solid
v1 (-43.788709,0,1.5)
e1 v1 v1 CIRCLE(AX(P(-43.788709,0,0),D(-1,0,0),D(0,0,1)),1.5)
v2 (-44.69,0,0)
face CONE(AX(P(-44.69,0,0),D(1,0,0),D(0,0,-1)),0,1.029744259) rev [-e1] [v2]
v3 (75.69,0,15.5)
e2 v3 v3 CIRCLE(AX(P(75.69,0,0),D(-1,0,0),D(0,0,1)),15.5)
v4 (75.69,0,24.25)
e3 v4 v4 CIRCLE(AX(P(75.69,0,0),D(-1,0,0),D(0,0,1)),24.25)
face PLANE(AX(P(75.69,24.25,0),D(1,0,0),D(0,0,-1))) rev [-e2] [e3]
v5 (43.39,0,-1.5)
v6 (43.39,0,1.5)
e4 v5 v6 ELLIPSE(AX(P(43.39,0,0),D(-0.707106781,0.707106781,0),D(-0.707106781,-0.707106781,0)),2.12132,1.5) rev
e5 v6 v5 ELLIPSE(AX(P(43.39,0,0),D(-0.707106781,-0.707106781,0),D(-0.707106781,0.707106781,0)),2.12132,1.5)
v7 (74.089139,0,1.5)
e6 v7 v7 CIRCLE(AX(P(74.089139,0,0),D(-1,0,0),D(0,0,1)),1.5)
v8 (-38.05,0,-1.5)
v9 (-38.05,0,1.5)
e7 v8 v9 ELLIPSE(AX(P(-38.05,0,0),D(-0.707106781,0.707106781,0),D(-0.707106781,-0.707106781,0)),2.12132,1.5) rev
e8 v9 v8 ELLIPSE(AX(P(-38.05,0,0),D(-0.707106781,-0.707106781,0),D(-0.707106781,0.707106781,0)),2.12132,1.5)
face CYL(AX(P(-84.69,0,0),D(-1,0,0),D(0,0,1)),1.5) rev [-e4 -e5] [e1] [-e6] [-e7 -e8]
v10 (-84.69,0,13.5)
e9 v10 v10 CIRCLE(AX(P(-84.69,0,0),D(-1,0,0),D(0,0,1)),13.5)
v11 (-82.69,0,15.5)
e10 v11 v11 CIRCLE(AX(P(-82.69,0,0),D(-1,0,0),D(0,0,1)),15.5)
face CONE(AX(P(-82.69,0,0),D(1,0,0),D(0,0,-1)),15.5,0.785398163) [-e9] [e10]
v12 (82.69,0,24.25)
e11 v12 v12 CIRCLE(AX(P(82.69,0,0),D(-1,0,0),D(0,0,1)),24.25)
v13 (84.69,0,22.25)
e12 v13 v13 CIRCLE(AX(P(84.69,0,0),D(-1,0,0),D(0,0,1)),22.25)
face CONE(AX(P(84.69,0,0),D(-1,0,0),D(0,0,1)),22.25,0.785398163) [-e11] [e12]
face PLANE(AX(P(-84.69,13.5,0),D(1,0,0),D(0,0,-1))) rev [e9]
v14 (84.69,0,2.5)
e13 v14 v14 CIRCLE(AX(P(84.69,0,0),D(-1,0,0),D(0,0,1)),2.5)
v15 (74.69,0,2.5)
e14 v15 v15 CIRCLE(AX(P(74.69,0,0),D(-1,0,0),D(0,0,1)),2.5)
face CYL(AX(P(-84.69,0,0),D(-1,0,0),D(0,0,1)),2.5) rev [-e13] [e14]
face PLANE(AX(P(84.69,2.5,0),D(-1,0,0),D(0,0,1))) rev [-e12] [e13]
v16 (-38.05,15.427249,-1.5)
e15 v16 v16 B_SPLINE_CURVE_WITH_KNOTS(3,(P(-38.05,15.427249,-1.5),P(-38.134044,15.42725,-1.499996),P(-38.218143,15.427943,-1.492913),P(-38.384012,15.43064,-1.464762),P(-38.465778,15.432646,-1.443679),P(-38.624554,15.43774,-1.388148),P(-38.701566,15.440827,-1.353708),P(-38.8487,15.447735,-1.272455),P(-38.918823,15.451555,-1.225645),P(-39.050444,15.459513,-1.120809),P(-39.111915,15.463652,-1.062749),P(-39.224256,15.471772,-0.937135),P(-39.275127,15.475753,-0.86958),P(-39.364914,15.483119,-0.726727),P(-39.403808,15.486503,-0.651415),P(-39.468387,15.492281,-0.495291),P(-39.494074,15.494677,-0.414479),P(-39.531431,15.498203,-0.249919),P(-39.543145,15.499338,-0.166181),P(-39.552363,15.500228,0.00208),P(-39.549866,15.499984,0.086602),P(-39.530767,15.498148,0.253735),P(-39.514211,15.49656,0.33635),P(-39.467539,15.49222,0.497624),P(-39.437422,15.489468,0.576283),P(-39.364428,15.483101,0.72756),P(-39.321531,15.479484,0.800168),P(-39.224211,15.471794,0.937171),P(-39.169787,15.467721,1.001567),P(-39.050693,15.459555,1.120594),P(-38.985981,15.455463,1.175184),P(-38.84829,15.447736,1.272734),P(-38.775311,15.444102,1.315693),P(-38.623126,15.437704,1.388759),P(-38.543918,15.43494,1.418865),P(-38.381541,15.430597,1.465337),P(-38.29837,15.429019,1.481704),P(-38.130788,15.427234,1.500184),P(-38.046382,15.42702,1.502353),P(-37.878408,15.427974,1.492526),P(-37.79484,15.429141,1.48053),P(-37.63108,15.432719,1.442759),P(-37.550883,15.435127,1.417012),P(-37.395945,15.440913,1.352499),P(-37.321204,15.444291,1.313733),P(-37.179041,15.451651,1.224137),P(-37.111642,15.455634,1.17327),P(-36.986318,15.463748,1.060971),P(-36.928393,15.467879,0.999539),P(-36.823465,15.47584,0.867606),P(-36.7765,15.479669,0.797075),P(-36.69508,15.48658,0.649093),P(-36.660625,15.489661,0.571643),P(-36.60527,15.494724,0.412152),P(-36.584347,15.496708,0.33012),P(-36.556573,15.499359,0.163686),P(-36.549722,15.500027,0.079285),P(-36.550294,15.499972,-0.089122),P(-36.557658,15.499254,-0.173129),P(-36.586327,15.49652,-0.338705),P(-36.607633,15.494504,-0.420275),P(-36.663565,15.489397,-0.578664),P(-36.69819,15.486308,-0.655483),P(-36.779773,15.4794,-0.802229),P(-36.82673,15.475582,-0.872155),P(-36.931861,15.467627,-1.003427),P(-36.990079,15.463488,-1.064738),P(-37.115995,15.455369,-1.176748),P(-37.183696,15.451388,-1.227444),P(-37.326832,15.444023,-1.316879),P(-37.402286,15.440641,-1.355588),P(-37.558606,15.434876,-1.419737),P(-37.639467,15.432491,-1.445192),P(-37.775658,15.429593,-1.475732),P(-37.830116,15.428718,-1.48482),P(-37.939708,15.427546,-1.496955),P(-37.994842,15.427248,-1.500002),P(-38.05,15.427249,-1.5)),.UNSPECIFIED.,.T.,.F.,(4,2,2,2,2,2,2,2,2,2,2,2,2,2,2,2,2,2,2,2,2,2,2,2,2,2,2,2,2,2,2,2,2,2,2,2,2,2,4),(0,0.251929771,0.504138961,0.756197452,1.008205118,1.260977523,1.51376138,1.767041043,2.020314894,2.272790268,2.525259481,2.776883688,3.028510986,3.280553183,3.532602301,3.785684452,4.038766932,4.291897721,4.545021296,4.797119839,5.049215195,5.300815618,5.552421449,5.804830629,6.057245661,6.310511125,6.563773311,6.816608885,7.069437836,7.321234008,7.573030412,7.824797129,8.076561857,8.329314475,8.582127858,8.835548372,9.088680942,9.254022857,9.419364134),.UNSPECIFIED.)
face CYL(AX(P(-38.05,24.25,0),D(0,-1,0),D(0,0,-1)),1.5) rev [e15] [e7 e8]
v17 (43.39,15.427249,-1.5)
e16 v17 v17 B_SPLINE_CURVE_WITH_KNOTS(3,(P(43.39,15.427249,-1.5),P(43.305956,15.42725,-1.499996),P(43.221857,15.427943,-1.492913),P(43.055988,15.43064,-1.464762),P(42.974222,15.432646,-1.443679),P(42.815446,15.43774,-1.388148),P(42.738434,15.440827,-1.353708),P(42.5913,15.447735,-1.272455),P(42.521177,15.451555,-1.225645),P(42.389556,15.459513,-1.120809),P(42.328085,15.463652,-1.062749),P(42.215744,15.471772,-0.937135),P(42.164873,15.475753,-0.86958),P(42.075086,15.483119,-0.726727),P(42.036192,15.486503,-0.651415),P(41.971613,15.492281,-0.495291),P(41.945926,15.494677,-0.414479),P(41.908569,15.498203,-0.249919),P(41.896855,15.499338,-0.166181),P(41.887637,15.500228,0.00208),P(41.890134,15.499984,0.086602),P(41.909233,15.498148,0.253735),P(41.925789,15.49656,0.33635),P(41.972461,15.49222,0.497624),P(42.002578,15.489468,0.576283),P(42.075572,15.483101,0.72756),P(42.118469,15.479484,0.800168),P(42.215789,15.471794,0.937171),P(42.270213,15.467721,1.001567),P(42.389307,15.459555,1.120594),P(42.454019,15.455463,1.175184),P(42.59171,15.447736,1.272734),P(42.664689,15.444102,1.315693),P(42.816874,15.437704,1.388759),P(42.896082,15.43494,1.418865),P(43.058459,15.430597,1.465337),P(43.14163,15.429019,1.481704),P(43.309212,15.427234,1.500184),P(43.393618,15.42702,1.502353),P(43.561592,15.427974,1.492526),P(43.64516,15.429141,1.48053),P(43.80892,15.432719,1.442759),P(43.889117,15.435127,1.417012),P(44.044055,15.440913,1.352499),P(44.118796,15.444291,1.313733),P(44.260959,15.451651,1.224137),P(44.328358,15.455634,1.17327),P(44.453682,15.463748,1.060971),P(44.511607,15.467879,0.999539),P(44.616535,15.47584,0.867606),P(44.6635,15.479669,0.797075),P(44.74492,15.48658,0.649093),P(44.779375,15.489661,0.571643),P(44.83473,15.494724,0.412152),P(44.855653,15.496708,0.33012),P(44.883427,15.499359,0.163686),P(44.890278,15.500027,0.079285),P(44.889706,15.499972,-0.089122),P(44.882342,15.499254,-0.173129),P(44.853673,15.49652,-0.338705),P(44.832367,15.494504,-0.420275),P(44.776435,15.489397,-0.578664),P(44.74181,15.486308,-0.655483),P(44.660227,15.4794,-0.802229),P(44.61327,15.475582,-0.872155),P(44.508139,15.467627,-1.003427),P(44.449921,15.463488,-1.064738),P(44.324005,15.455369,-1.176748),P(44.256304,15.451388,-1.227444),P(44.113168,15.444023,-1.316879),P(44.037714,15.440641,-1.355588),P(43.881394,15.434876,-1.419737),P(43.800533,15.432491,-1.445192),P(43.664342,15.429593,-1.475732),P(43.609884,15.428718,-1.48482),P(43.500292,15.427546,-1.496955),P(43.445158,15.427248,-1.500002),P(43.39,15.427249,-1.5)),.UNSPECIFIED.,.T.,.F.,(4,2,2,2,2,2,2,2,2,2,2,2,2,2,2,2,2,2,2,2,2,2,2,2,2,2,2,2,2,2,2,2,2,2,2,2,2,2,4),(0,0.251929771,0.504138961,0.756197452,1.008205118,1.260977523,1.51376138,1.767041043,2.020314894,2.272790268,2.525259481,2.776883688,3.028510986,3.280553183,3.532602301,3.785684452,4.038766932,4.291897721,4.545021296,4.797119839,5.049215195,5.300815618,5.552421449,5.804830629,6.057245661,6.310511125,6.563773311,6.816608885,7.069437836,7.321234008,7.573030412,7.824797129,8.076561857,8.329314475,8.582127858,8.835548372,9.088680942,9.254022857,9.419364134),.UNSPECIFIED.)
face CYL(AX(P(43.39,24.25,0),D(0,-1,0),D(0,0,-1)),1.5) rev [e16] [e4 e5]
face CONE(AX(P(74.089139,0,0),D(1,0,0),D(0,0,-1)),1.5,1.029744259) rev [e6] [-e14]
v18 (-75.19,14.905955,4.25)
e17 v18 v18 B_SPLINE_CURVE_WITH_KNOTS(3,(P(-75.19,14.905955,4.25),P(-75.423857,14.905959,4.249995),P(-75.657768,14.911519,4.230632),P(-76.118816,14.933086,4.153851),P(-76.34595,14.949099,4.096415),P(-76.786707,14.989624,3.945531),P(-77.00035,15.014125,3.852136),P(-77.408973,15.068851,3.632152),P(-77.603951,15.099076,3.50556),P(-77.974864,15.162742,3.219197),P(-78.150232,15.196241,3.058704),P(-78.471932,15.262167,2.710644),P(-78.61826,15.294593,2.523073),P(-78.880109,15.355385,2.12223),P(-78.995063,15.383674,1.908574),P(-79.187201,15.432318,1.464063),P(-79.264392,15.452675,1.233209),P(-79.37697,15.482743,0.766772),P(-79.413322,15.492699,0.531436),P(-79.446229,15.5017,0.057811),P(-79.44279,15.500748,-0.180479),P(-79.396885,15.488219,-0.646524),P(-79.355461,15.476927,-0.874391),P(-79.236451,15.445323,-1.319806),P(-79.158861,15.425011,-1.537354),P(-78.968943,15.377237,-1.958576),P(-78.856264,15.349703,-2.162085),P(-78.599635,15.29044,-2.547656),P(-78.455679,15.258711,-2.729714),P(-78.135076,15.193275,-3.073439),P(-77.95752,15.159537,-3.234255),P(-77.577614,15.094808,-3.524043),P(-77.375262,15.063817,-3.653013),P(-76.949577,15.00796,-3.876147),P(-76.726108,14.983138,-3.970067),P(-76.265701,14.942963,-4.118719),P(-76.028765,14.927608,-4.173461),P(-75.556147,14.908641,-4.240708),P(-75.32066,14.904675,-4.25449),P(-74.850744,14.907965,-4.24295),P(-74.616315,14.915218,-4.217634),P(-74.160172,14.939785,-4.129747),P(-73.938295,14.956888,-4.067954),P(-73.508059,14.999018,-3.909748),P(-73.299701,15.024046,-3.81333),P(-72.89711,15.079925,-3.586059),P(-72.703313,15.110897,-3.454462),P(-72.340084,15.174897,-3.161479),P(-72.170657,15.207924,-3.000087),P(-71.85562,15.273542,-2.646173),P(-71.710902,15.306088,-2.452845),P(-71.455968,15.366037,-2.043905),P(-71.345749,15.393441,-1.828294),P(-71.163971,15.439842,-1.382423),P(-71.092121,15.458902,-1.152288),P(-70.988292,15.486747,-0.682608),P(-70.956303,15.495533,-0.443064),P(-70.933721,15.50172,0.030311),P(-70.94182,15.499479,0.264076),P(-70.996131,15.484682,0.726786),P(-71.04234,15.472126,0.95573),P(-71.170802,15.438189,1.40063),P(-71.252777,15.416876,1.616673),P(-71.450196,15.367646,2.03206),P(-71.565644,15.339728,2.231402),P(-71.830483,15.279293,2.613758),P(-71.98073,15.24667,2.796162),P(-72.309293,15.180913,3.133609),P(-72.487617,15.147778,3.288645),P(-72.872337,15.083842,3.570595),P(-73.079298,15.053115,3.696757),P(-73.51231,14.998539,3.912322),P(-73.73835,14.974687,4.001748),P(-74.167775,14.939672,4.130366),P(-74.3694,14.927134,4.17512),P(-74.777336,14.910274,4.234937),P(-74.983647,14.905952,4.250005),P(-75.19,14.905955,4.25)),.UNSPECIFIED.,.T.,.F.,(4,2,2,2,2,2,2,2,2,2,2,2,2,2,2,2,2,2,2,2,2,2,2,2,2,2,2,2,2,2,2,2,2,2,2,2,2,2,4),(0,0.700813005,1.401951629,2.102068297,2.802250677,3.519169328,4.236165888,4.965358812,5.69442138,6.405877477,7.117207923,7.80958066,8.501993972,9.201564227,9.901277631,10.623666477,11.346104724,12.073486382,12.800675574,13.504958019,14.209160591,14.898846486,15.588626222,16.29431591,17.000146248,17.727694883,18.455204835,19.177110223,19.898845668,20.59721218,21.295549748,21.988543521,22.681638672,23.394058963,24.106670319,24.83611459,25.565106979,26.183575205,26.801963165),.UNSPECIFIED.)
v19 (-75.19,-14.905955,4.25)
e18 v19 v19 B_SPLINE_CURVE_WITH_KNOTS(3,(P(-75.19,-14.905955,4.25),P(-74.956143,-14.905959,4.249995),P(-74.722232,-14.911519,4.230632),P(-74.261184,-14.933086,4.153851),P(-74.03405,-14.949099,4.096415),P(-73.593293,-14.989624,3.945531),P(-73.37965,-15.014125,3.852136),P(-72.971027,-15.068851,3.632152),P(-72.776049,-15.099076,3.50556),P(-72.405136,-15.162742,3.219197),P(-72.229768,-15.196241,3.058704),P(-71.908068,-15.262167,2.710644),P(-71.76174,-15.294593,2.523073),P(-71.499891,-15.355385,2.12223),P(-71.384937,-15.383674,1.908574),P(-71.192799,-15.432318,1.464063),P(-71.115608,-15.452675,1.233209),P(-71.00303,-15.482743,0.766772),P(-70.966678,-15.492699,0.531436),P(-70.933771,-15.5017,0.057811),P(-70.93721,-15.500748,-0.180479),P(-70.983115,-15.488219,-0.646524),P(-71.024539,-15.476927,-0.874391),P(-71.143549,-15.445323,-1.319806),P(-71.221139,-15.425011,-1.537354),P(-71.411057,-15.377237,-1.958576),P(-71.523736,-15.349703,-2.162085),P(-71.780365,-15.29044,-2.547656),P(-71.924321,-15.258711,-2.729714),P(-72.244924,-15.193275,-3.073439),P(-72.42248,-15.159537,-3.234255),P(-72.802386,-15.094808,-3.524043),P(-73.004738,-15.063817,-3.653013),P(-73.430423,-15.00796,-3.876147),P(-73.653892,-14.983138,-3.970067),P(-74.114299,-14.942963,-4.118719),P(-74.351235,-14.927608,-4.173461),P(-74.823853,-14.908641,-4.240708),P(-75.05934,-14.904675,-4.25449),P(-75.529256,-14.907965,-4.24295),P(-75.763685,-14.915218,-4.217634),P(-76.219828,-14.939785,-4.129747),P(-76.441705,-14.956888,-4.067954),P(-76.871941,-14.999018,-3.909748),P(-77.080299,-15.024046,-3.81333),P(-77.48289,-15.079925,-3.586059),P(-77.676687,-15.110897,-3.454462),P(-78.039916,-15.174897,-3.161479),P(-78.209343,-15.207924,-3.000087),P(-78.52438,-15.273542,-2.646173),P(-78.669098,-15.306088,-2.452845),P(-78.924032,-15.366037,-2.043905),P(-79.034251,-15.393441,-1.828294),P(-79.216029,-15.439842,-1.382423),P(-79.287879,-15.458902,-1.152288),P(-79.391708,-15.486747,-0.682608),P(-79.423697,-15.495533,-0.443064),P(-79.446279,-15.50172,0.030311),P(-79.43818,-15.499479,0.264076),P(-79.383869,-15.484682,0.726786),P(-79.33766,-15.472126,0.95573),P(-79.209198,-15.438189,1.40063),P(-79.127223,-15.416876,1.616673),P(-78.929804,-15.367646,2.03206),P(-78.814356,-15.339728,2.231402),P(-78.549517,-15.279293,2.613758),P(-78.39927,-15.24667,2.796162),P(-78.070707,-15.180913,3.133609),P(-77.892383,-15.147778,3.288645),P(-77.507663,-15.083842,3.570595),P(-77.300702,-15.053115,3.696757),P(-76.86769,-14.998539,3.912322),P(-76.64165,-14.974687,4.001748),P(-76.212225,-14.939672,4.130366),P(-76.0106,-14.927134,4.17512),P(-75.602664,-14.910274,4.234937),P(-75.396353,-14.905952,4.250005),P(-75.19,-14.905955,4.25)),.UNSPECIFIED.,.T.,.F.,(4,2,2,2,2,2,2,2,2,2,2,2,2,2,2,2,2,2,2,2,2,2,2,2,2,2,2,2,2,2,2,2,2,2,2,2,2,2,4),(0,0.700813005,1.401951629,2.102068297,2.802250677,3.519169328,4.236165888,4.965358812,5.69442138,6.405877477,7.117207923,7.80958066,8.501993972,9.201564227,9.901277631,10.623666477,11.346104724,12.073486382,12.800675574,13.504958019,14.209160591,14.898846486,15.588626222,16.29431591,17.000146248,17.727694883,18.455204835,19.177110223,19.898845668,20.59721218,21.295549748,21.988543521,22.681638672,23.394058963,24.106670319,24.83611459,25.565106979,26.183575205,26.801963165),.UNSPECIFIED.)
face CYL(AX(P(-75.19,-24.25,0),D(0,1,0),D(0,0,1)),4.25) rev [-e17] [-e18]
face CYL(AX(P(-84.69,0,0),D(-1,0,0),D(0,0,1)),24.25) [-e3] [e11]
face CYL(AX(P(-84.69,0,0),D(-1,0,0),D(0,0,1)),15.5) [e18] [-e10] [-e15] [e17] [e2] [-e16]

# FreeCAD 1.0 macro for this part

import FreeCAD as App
import Part
import Sketcher
from FreeCAD import Vector
Q = App.Units.Quantity

doc = App.newDocument("Part")
params = doc.addObject("Spreadsheet::Sheet", "Params")
for row, (alias, value) in enumerate([
    ("sketch1_width", "7 mm"),
    ("sketch1_width2", "40 mm"),
    ("sketch1_width3", "10 mm"),
    ("sketch1_height", "13.5 mm"),
    ("sketch1_width4", "158.38 mm"),
    ("revolution_angle", "360 deg"),
    ("sketch2_diameter", "3 mm"),
    ("sketch3_diameter", "8.5 mm"),
], start=1):
    params.set(f"A{row}", alias)
    params.set(f"B{row}", "=" + value)
    params.setAlias(f"B{row}", alias)

body = doc.addObject("PartDesign::Body", "Body")

# Sketch on XY plane
sketch1 = body.newObject("Sketcher::SketchObject", "Sketch")
sketch1.AttachmentSupport = (doc.getObject("XY_Plane"), [""])
sketch1.MapMode = "FlatFace"
sketch1.addGeometry(Part.LineSegment(Vector(84.7, 2.5, 0), Vector(84.7, 22.2, 0)), False)
sketch1.addGeometry(Part.LineSegment(Vector(84.7, 22.2, 0), Vector(82.7, 24.2, 0)), False)
sketch1.addGeometry(Part.LineSegment(Vector(82.7, 24.2, 0), Vector(75.7, 24.2, 0)), False)
sketch1.addGeometry(Part.LineSegment(Vector(75.7, 24.2, 0), Vector(75.7, 15.5, 0)), False)
sketch1.addGeometry(Part.LineSegment(Vector(75.7, 15.5, 0), Vector(-82.7, 15.5, 0)), False)
sketch1.addGeometry(Part.LineSegment(Vector(-82.7, 15.5, 0), Vector(-84.7, 13.5, 0)), False)
sketch1.addGeometry(Part.LineSegment(Vector(-84.7, 13.5, 0), Vector(-84.7, 0, 0)), False)
sketch1.addGeometry(Part.LineSegment(Vector(-84.7, 0, 0), Vector(-44.7, 0, 0)), False)
sketch1.addGeometry(Part.LineSegment(Vector(-44.7, 0, 0), Vector(-43.8, 1.5, 0)), False)
sketch1.addGeometry(Part.LineSegment(Vector(-43.8, 1.5, 0), Vector(74.1, 1.5, 0)), False)
sketch1.addGeometry(Part.LineSegment(Vector(74.1, 1.5, 0), Vector(74.7, 2.5, 0)), False)
sketch1.addGeometry(Part.LineSegment(Vector(74.7, 2.5, 0), Vector(84.7, 2.5, 0)), False)
sketch1.addConstraint(Sketcher.Constraint("Coincident", 0, 2, 1, 1))
sketch1.addConstraint(Sketcher.Constraint("Coincident", 1, 2, 2, 1))
sketch1.addConstraint(Sketcher.Constraint("Coincident", 2, 2, 3, 1))
sketch1.addConstraint(Sketcher.Constraint("Coincident", 3, 2, 4, 1))
sketch1.addConstraint(Sketcher.Constraint("Coincident", 4, 2, 5, 1))
sketch1.addConstraint(Sketcher.Constraint("Coincident", 5, 2, 6, 1))
sketch1.addConstraint(Sketcher.Constraint("Coincident", 6, 2, 7, 1))
sketch1.addConstraint(Sketcher.Constraint("Coincident", 7, 2, 8, 1))
sketch1.addConstraint(Sketcher.Constraint("Coincident", 8, 2, 9, 1))
sketch1.addConstraint(Sketcher.Constraint("Coincident", 9, 2, 10, 1))
sketch1.addConstraint(Sketcher.Constraint("Coincident", 10, 2, 11, 1))
sketch1.addConstraint(Sketcher.Constraint("Coincident", 11, 2, 0, 1))
sketch1.addConstraint(Sketcher.Constraint("Vertical", 0))
sketch1.addConstraint(Sketcher.Constraint("Horizontal", 2))
sketch1.addConstraint(Sketcher.Constraint("Vertical", 3))
sketch1.addConstraint(Sketcher.Constraint("Horizontal", 4))
sketch1.addConstraint(Sketcher.Constraint("Vertical", 6))
sketch1.addConstraint(Sketcher.Constraint("Horizontal", 7))
sketch1.addConstraint(Sketcher.Constraint("Horizontal", 9))
sketch1.addConstraint(Sketcher.Constraint("Horizontal", 11))
sketch1.addConstraint(Sketcher.Constraint("PointOnObject", 6, 2, -1))
sketch1.addConstraint(Sketcher.Constraint("Perpendicular", 1, 5))
sketch1.addConstraint(Sketcher.Constraint("Parallel", 8, 10))
sketch1.addConstraint(Sketcher.Constraint("Equal", 1, 5))
sketch1.addConstraint(Sketcher.Constraint("DistanceX", 2, 2, 2, 1, 7.0))
sketch1.addConstraint(Sketcher.Constraint("DistanceX", 7, 1, 7, 2, 40.0))
sketch1.addConstraint(Sketcher.Constraint("DistanceX", 11, 1, 11, 2, 10.0))
sketch1.addConstraint(Sketcher.Constraint("Angle", 1, Q("135 deg")))
sketch1.addConstraint(Sketcher.Constraint("Angle", 8, Q("59 deg")))
sketch1.addConstraint(Sketcher.Constraint("DistanceY", 6, 2, 6, 1, 13.5))
sketch1.addConstraint(Sketcher.Constraint("DistanceX", 1, 2, 0, 2, 2.0))
sketch1.addConstraint(Sketcher.Constraint("DistanceY", 8, 2, 4, 2, 14.0))
sketch1.addConstraint(Sketcher.Constraint("DistanceY", 9, 2, 10, 2, 1.0))
sketch1.addConstraint(Sketcher.Constraint("DistanceX", 4, 2, 4, 1, 158.38))
sketch1.addConstraint(Sketcher.Constraint("DistanceY", 0, 1, 0, 2, 19.75))
sketch1.addConstraint(Sketcher.Constraint("DistanceX", -1, 1, 0, 2, 84.69))
sketch1.setExpression("Constraints[24]", "Params.sketch1_width")
sketch1.setExpression("Constraints[25]", "Params.sketch1_width2")
sketch1.setExpression("Constraints[26]", "Params.sketch1_width3")
sketch1.setExpression("Constraints[29]", "Params.sketch1_height")
sketch1.setExpression("Constraints[33]", "Params.sketch1_width4")
revolution = body.newObject("PartDesign::Revolution", "Revolution")
revolution.Profile = sketch1
revolution.ReferenceAxis = (sketch1, ["H_Axis"])
revolution.setExpression("Angle", "Params.revolution_angle")

# Sketch on XZ plane
sketch2 = body.newObject("Sketcher::SketchObject", "Sketch001")
sketch2.AttachmentSupport = (doc.getObject("XZ_Plane"), [""])
sketch2.MapMode = "FlatFace"
sketch2.addGeometry(Part.Circle(Vector(43.4, 0, 0), Vector(0, 0, 1), 1.5), False)
sketch2.addGeometry(Part.Circle(Vector(-38, 0, 0), Vector(0, 0, 1), 1.5), False)
sketch2.addConstraint(Sketcher.Constraint("Equal", 0, 1))
sketch2.addConstraint(Sketcher.Constraint("PointOnObject", 0, 3, -1))
sketch2.addConstraint(Sketcher.Constraint("PointOnObject", 1, 3, -1))
sketch2.addConstraint(Sketcher.Constraint("Diameter", 0, 3.0))
sketch2.addConstraint(Sketcher.Constraint("DistanceX", -1, 1, 0, 3, 43.39))
sketch2.addConstraint(Sketcher.Constraint("DistanceX", 1, 3, -1, 1, 38.05))
sketch2.setExpression("Constraints[3]", "Params.sketch2_diameter")
pocket1 = body.newObject("PartDesign::Pocket", "Pocket")
pocket1.Profile = sketch2
pocket1.Type = "ThroughAll"

# Sketch on XZ plane
sketch3 = body.newObject("Sketcher::SketchObject", "Sketch002")
sketch3.AttachmentSupport = (doc.getObject("XZ_Plane"), [""])
sketch3.MapMode = "FlatFace"
sketch3.addGeometry(Part.Circle(Vector(-75.2, 0, 0), Vector(0, 0, 1), 4.2), False)
sketch3.addConstraint(Sketcher.Constraint("PointOnObject", 0, 3, -1))
sketch3.addConstraint(Sketcher.Constraint("Diameter", 0, 8.5))
sketch3.addConstraint(Sketcher.Constraint("DistanceX", 0, 3, -1, 1, 75.19))
sketch3.setExpression("Constraints[1]", "Params.sketch3_diameter")
pocket2 = body.newObject("PartDesign::Pocket", "Pocket001")
pocket2.Profile = sketch3
pocket2.Type = "ThroughAll"
pocket2.Midplane = True

doc.recompute()
